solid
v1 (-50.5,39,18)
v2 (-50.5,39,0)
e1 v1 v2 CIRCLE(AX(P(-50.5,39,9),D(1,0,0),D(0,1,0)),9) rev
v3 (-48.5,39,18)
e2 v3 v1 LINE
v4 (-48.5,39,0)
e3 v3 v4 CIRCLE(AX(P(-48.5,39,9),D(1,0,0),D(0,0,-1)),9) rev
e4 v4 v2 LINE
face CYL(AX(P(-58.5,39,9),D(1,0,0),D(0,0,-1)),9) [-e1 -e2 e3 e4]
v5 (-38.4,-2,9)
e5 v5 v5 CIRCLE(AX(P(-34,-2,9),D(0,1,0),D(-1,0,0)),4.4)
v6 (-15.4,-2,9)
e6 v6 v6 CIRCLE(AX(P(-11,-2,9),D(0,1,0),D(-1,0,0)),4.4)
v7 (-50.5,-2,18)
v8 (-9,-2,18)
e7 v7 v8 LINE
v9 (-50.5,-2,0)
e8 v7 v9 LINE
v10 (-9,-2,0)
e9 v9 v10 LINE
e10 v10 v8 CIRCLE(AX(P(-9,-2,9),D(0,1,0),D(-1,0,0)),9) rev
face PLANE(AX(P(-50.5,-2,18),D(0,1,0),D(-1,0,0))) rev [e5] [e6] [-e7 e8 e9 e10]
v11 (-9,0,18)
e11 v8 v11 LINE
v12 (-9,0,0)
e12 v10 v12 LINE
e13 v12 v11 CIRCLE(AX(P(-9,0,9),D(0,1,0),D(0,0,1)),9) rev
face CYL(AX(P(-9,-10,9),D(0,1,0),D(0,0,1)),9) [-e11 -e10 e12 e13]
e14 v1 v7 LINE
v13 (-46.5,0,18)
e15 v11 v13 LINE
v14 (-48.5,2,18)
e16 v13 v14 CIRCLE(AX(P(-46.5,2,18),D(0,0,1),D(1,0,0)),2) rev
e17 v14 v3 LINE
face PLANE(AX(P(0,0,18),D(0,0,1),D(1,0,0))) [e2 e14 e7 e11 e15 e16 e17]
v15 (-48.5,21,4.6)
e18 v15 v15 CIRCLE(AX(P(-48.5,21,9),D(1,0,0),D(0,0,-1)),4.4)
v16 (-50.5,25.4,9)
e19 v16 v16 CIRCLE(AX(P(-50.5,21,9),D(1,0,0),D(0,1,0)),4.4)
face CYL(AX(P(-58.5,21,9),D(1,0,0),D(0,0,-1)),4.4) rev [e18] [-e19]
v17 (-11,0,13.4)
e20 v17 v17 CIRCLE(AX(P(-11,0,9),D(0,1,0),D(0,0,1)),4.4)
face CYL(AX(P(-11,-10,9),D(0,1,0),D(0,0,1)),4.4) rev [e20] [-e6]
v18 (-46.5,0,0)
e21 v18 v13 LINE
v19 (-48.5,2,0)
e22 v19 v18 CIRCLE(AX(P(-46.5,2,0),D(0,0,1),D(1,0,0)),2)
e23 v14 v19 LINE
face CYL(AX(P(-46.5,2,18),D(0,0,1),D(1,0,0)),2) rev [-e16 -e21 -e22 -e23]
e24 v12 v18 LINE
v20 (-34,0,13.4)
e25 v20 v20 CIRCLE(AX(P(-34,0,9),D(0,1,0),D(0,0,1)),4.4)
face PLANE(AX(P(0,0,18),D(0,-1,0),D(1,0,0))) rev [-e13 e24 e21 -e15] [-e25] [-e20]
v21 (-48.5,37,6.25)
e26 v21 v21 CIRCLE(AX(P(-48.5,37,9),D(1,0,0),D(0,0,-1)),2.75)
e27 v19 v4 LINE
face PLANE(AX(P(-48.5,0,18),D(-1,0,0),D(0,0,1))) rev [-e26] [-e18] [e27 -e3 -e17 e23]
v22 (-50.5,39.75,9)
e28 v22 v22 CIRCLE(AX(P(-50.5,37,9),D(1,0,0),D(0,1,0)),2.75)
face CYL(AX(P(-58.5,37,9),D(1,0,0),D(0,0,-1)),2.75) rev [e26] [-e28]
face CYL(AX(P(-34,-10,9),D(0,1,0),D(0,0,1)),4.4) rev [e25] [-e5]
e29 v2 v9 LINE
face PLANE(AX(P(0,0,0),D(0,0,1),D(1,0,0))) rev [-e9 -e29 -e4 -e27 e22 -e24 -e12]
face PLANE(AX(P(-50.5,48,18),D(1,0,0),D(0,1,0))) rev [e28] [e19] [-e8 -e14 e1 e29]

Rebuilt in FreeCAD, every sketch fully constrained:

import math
import FreeCAD as App
import Part
import Sketcher

V = App.Vector
Q = App.Units.Quantity


def edges_at(feature, points):
    """Names of the edges that pass closest to the given points."""
    edges = feature.Shape.Edges
    near = lambda p: min(range(len(edges)), key=lambda i: edges[i].distToShape(Part.Vertex(*p))[0])
    return sorted({f"Edge{near(p) + 1}" for p in points})


def add_polygon(sketch, points):
    """Adds a closed chain of lines whose ends are joined by coincident constraints."""
    first, n = sketch.GeometryCount, len(points)
    for a, b in zip(points, points[1:] + points[:1]):
        sketch.addGeometry(Part.LineSegment(App.Vector(*a, 0), App.Vector(*b, 0)), False)
    for i in range(n):
        sketch.addConstraint(Sketcher.Constraint("Coincident", first + i, 2, first + (i + 1) % n, 1))

doc = App.newDocument("Part")
body = doc.addObject("PartDesign::Body", "Body")

sketch1 = body.newObject("Sketcher::SketchObject", "Sketch")
sketch1.AttachmentSupport = (doc.getObject("XY_Plane"), [""])
sketch1.MapMode = "FlatFace"
add_polygon(sketch1, [(0, 0), (-48.5, 0), (-48.5, 48), (-50.5, 48), (-50.5, -2), (0, -2)])
sketch1.addConstraint(Sketcher.Constraint("Horizontal", 0))
sketch1.addConstraint(Sketcher.Constraint("Vertical", 1))
sketch1.addConstraint(Sketcher.Constraint("Horizontal", 2))
sketch1.addConstraint(Sketcher.Constraint("Vertical", 3))
sketch1.addConstraint(Sketcher.Constraint("Horizontal", 4))
sketch1.addConstraint(Sketcher.Constraint("Vertical", 5))
sketch1.addConstraint(Sketcher.Constraint("Coincident", 5, 2, -1, 1))
sketch1.addConstraint(Sketcher.Constraint("Equal", 2, 5))
sketch1.addConstraint(Sketcher.Constraint("DistanceX", 2, 2, 2, 1, Q("2 mm")))
sketch1.addConstraint(Sketcher.Constraint("DistanceY", 1, 1, 1, 2, Q("48 mm")))
sketch1.addConstraint(Sketcher.Constraint("DistanceX", 0, 2, 0, 1, Q("48.5 mm")))
pad1 = body.newObject("PartDesign::Pad", "Pad")
pad1.Profile = sketch1
pad1.Length = 18
doc.recompute()

fillet = body.newObject("PartDesign::Fillet", "Fillet")
fillet.Base = (pad1, edges_at(pad1, [(-48.5, 0, 9)]))
fillet.Radius = 2

sketch2 = body.newObject("Sketcher::SketchObject", "Sketch001")
sketch2.AttachmentSupport = (doc.getObject("YZ_Plane"), [""])
sketch2.MapMode = "FlatFace"
sketch2.AttachmentOffset = App.Placement(V(0, 0, -48.5), App.Rotation())
sketch2.addGeometry(Part.LineSegment(V(48, 9, 0), V(48, 18, 0)), False)
sketch2.addGeometry(Part.LineSegment(V(48, 18, 0), V(39, 18, 0)), False)
sketch2.addGeometry(Part.ArcOfCircle(Part.Circle(V(39, 9, 0), V(0, 0, 1), 9), math.radians(0), math.radians(90)), False)
sketch2.addGeometry(Part.Circle(V(21, 9, 0), V(0, 0, 1), 4.4), False)
sketch2.addGeometry(Part.Circle(V(37, 9, 0), V(0, 0, 1), 2.8), False)
sketch2.addGeometry(Part.LineSegment(V(48, 0, 0), V(48, 9, 0)), False)
sketch2.addGeometry(Part.ArcOfCircle(Part.Circle(V(39, 9, 0), V(0, 0, 1), 9), math.radians(-90), math.radians(0)), False)
sketch2.addGeometry(Part.LineSegment(V(39, 0, 0), V(48, 0, 0)), False)
sketch2.addConstraint(Sketcher.Constraint("Coincident", 0, 2, 1, 1))
sketch2.addConstraint(Sketcher.Constraint("Tangent", 1, 2, 2, 2))
sketch2.addConstraint(Sketcher.Constraint("Tangent", 2, 1, 0, 1))
sketch2.addConstraint(Sketcher.Constraint("Tangent", 5, 2, 6, 2))
sketch2.addConstraint(Sketcher.Constraint("Tangent", 6, 1, 7, 1))
sketch2.addConstraint(Sketcher.Constraint("Coincident", 7, 2, 5, 1))
sketch2.addConstraint(Sketcher.Constraint("Vertical", 0))
sketch2.addConstraint(Sketcher.Constraint("Horizontal", 1))
sketch2.addConstraint(Sketcher.Constraint("Vertical", 5))
sketch2.addConstraint(Sketcher.Constraint("Horizontal", 7))
sketch2.addConstraint(Sketcher.Constraint("Coincident", 6, 3, 2, 3))
sketch2.addConstraint(Sketcher.Constraint("Equal", 2, 6))
sketch2.addConstraint(Sketcher.Constraint("PointOnObject", 6, 1, -1))
sketch2.addConstraint(Sketcher.Constraint("Horizontal", 2, 3, 3, 3))
sketch2.addConstraint(Sketcher.Constraint("Horizontal", 3, 3, 4, 3))
sketch2.addConstraint(Sketcher.Constraint("Radius", 2, Q("9 mm")))
sketch2.addConstraint(Sketcher.Constraint("Diameter", 3, Q("8.8 mm")))
sketch2.addConstraint(Sketcher.Constraint("Diameter", 4, Q("5.5 mm")))
sketch2.addConstraint(Sketcher.Constraint("DistanceX", -1, 1, 2, 3, Q("39 mm")))
sketch2.addConstraint(Sketcher.Constraint("DistanceX", -1, 1, 3, 3, Q("21 mm")))
sketch2.addConstraint(Sketcher.Constraint("DistanceX", -1, 1, 4, 3, Q("37 mm")))
pocket1 = body.newObject("PartDesign::Pocket", "Pocket")
pocket1.Profile = sketch2
pocket1.Length = 10

sketch3 = body.newObject("Sketcher::SketchObject", "Sketch002")
sketch3.AttachmentSupport = (doc.getObject("XZ_Plane"), [""])
sketch3.MapMode = "FlatFace"
sketch3.addGeometry(Part.LineSegment(V(0, 9, 0), V(0, 0, 0)), False)
sketch3.addGeometry(Part.LineSegment(V(0, 0, 0), V(-9, 0, 0)), False)
sketch3.addGeometry(Part.ArcOfCircle(Part.Circle(V(-9, 9, 0), V(0, 0, 1), 9), math.radians(-90), math.radians(0)), False)
sketch3.addGeometry(Part.Circle(V(-34, 9, 0), V(0, 0, 1), 4.4), False)
sketch3.addGeometry(Part.Circle(V(-11, 9, 0), V(0, 0, 1), 4.4), False)
sketch3.addGeometry(Part.LineSegment(V(0, 18, 0), V(0, 9, 0)), False)
sketch3.addGeometry(Part.ArcOfCircle(Part.Circle(V(-9, 9, 0), V(0, 0, 1), 9), math.radians(0), math.radians(90)), False)
sketch3.addGeometry(Part.LineSegment(V(-9, 18, 0), V(0, 18, 0)), False)
sketch3.addConstraint(Sketcher.Constraint("Coincident", 0, 2, 1, 1))
sketch3.addConstraint(Sketcher.Constraint("Tangent", 1, 2, 2, 1))
sketch3.addConstraint(Sketcher.Constraint("Tangent", 2, 2, 0, 1))
sketch3.addConstraint(Sketcher.Constraint("Tangent", 5, 2, 6, 1))
sketch3.addConstraint(Sketcher.Constraint("Tangent", 6, 2, 7, 1))
sketch3.addConstraint(Sketcher.Constraint("Coincident", 7, 2, 5, 1))
sketch3.addConstraint(Sketcher.Constraint("Vertical", 0))
sketch3.addConstraint(Sketcher.Constraint("Horizontal", 1))
sketch3.addConstraint(Sketcher.Constraint("Vertical", 5))
sketch3.addConstraint(Sketcher.Constraint("Horizontal", 7))
sketch3.addConstraint(Sketcher.Constraint("Coincident", 0, 2, -1, 1))
sketch3.addConstraint(Sketcher.Constraint("Coincident", 6, 3, 2, 3))
sketch3.addConstraint(Sketcher.Constraint("Equal", 3, 4))
sketch3.addConstraint(Sketcher.Constraint("Equal", 2, 6))
sketch3.addConstraint(Sketcher.Constraint("Horizontal", 2, 3, 3, 3))
sketch3.addConstraint(Sketcher.Constraint("Horizontal", 3, 3, 4, 3))
sketch3.addConstraint(Sketcher.Constraint("Radius", 2, Q("9 mm")))
sketch3.addConstraint(Sketcher.Constraint("Diameter", 3, Q("8.8 mm")))
sketch3.addConstraint(Sketcher.Constraint("DistanceX", 3, 3, -1, 1, Q("34 mm")))
sketch3.addConstraint(Sketcher.Constraint("DistanceX", 4, 3, -1, 1, Q("11 mm")))
pocket2 = body.newObject("PartDesign::Pocket", "Pocket001")
pocket2.Profile = sketch3
pocket2.Length = 10
pocket2.Reversed = True

doc.recompute()
